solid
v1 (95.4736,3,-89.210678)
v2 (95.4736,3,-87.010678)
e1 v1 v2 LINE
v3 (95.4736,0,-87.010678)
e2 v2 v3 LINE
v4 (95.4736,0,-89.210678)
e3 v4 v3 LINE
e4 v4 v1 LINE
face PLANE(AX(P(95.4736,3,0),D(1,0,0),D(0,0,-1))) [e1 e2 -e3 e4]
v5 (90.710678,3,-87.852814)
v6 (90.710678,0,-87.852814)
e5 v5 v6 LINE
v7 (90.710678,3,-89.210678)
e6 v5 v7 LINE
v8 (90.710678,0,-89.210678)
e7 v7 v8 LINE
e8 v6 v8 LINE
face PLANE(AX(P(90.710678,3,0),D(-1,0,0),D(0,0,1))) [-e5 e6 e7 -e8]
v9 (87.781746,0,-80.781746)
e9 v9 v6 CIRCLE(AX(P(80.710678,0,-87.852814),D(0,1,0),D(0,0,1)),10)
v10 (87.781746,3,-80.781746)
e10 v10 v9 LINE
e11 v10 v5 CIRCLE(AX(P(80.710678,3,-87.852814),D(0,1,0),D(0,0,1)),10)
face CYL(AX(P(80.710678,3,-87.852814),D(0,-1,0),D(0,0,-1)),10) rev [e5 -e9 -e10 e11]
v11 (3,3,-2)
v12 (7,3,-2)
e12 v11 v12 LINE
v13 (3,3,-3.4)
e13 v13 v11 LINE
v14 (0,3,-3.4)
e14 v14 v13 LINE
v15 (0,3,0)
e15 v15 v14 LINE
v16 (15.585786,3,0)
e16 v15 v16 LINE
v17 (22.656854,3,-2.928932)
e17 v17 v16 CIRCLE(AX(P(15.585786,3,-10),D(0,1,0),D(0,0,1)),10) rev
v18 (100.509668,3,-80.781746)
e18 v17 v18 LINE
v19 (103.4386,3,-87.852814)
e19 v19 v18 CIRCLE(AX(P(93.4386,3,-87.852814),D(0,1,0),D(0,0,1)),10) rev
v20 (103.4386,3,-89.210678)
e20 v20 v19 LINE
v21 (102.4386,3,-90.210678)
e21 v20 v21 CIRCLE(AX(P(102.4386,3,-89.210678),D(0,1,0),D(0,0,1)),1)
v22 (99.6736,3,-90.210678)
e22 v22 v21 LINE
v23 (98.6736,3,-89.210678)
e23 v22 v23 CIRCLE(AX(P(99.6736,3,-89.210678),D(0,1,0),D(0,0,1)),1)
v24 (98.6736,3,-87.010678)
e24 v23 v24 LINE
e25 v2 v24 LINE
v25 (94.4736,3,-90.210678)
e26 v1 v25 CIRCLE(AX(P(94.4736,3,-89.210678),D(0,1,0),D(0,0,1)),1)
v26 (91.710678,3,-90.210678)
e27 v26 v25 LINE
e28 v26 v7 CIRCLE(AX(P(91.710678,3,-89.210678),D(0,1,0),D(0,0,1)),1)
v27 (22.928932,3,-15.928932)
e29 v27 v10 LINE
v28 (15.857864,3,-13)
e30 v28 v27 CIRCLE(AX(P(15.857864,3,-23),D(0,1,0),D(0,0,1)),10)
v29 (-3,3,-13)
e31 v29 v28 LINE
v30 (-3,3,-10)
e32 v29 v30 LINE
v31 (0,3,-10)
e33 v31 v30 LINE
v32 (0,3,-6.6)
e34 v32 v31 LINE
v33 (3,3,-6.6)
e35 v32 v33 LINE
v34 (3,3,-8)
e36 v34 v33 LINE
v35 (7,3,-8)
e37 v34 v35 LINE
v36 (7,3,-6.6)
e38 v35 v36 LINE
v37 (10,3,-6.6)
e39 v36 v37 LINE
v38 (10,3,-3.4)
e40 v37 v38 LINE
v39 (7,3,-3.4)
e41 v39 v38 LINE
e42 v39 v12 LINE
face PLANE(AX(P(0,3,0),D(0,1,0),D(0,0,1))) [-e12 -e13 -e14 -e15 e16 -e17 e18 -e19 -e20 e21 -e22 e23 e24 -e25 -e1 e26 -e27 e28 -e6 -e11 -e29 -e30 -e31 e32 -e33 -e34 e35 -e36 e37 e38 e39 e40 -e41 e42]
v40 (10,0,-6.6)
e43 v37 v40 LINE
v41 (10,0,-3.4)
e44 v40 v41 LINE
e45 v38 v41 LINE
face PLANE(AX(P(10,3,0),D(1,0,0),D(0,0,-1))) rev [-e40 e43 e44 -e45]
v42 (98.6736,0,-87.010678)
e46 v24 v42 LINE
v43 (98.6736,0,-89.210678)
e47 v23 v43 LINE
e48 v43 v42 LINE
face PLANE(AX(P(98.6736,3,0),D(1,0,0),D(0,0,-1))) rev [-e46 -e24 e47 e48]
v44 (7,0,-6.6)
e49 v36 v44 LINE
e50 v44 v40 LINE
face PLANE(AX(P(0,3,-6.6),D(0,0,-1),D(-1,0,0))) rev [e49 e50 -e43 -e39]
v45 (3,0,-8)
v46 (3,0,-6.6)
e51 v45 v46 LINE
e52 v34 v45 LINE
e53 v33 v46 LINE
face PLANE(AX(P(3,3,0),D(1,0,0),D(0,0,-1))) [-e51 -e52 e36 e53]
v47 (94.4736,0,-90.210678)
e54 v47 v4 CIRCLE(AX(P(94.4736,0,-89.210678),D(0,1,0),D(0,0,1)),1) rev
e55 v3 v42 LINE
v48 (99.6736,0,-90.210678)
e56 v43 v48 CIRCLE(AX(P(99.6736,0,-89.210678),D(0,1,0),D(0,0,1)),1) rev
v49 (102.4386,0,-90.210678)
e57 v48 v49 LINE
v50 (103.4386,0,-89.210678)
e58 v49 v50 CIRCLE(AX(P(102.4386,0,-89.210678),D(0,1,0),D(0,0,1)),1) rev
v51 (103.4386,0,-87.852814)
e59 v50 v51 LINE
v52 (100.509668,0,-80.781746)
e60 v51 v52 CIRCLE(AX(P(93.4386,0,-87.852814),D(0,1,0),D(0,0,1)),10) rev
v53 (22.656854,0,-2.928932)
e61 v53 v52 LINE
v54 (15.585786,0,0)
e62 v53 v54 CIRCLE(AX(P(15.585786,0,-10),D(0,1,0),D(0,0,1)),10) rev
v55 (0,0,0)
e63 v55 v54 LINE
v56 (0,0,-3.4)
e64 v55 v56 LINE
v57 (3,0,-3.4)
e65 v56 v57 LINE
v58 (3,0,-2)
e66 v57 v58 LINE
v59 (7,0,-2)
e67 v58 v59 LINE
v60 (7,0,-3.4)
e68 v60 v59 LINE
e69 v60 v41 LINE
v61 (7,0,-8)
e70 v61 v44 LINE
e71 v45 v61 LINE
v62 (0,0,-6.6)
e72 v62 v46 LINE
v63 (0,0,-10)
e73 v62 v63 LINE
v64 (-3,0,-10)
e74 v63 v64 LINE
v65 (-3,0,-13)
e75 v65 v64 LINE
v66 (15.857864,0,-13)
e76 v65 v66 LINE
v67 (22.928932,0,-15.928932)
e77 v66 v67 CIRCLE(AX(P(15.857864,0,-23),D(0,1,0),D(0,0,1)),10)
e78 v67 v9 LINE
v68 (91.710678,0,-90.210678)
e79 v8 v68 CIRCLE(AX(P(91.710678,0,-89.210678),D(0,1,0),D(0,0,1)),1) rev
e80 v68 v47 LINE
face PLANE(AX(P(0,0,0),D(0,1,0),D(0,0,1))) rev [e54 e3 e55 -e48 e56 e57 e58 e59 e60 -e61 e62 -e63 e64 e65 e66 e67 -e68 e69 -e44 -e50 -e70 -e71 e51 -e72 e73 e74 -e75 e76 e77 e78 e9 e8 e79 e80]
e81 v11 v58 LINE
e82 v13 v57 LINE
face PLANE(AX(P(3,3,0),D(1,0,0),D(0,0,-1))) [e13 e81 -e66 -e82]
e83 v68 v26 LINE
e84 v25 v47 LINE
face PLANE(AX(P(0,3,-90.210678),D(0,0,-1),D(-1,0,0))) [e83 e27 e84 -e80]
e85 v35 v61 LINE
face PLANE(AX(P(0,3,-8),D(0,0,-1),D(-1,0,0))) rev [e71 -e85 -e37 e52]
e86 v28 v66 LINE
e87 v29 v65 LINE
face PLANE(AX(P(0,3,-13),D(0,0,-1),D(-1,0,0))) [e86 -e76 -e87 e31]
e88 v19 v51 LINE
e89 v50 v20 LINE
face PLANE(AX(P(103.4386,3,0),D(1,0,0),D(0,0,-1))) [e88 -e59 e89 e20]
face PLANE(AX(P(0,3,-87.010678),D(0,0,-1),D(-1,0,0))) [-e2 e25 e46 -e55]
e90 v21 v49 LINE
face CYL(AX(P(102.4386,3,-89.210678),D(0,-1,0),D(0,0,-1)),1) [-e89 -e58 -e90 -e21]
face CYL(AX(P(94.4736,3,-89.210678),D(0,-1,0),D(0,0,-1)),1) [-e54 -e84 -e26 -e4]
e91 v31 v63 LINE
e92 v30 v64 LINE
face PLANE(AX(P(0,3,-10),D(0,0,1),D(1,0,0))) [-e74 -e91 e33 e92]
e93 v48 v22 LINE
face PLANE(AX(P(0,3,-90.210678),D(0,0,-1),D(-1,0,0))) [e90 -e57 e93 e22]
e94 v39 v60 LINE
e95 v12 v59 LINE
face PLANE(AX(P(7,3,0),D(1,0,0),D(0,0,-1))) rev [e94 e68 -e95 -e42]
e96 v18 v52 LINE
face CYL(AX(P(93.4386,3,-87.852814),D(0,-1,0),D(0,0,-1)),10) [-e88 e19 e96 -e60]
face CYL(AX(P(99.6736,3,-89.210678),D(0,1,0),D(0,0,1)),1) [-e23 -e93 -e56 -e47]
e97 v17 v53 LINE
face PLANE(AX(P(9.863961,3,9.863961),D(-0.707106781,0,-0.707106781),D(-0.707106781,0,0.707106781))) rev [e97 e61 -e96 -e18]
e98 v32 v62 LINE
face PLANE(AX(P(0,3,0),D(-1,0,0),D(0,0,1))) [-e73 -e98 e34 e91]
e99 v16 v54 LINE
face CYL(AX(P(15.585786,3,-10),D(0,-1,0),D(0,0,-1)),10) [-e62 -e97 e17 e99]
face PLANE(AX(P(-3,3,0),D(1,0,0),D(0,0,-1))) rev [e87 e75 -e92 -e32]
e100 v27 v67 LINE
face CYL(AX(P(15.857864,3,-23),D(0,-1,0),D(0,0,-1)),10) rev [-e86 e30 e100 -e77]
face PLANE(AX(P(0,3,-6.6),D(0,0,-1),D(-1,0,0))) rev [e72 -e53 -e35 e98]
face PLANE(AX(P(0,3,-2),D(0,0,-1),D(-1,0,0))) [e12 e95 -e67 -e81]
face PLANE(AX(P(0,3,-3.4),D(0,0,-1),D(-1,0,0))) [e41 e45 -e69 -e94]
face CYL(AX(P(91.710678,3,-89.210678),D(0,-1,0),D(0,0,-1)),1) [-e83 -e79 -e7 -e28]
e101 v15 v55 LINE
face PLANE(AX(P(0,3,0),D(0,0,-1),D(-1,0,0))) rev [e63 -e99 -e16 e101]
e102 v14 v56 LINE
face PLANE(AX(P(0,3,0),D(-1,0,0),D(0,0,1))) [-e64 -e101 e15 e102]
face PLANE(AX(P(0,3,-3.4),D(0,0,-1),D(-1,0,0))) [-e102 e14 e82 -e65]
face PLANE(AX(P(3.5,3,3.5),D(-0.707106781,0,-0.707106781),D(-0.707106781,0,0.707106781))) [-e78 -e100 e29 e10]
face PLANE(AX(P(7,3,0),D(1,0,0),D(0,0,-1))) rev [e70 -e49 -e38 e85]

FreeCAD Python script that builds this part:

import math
import FreeCAD as App
import Part
import Sketcher

V = App.Vector
Q = App.Units.Quantity


def edges_at(feature, points):
    """Names of the edges that pass closest to the given points."""
    edges = feature.Shape.Edges
    near = lambda p: min(range(len(edges)), key=lambda i: edges[i].distToShape(Part.Vertex(*p))[0])
    return sorted({f"Edge{near(p) + 1}" for p in points})

doc = App.newDocument("Part")
body = doc.addObject("PartDesign::Body", "Body")

sketch1 = doc.addObject("Sketcher::SketchObject", "Sketch")
body.addObject(sketch1)
sketch1.AttachmentSupport = (doc.XZ_Plane, [""])
sketch1.MapMode = "FlatFace"
sketch1.addGeometry([
    Part.LineSegment(V(10, -3.4, 0), V(7, -3.4, 0)),
    Part.LineSegment(V(7, -3.4, 0), V(7, -2, 0)),
    Part.LineSegment(V(7, -2, 0), V(3, -2, 0)),
    Part.LineSegment(V(3, -2, 0), V(3, -3.4, 0)),
    Part.LineSegment(V(3, -3.4, 0), V(0, -3.4, 0)),
    Part.LineSegment(V(0, -3.4, 0), V(0, 0, 0)),
    Part.LineSegment(V(0, 0, 0), V(15.6, 0, 0)),
    Part.ArcOfCircle(Part.Circle(V(15.6, -10, 0), V(0, 0, 1), 10), math.radians(45), math.radians(90)),
    Part.LineSegment(V(22.7, -2.9, 0), V(100.5, -80.8, 0)),
    Part.ArcOfCircle(Part.Circle(V(93.4, -87.9, 0), V(0, 0, 1), 10), math.radians(0), math.radians(45)),
    Part.LineSegment(V(103.4, -87.9, 0), V(103.4, -90.2, 0)),
    Part.LineSegment(V(103.4, -90.2, 0), V(98.7, -90.2, 0)),
    Part.LineSegment(V(98.7, -90.2, 0), V(98.7, -87, 0)),
    Part.LineSegment(V(98.7, -87, 0), V(95.5, -87, 0)),
    Part.LineSegment(V(95.5, -87, 0), V(95.5, -90.2, 0)),
    Part.LineSegment(V(95.5, -90.2, 0), V(90.7, -90.2, 0)),
    Part.LineSegment(V(90.7, -90.2, 0), V(90.7, -87.9, 0)),
    Part.ArcOfCircle(Part.Circle(V(80.7, -87.9, 0), V(0, 0, 1), 10), math.radians(0), math.radians(45)),
    Part.LineSegment(V(87.8, -80.8, 0), V(22.9, -15.9, 0)),
    Part.ArcOfCircle(Part.Circle(V(15.9, -23, 0), V(0, 0, 1), 10), math.radians(45), math.radians(90)),
    Part.LineSegment(V(15.9, -13, 0), V(-3, -13, 0)),
    Part.LineSegment(V(-3, -13, 0), V(-3, -10, 0)),
    Part.LineSegment(V(-3, -10, 0), V(0, -10, 0)),
    Part.LineSegment(V(0, -10, 0), V(0, -6.6, 0)),
    Part.LineSegment(V(0, -6.6, 0), V(3, -6.6, 0)),
    Part.LineSegment(V(3, -6.6, 0), V(3, -8, 0)),
    Part.LineSegment(V(3, -8, 0), V(7, -8, 0)),
    Part.LineSegment(V(7, -8, 0), V(7, -6.6, 0)),
    Part.LineSegment(V(7, -6.6, 0), V(10, -6.6, 0)),
    Part.LineSegment(V(10, -6.6, 0), V(10, -3.4, 0)),
], False)
sketch1.addConstraint([
    Sketcher.Constraint("Coincident", 0, 2, 1, 1),
    Sketcher.Constraint("Coincident", 1, 2, 2, 1),
    Sketcher.Constraint("Coincident", 2, 2, 3, 1),
    Sketcher.Constraint("Coincident", 3, 2, 4, 1),
    Sketcher.Constraint("Coincident", 4, 2, 5, 1),
    Sketcher.Constraint("Coincident", 5, 2, 6, 1),
    Sketcher.Constraint("Tangent", 6, 2, 7, 2),
    Sketcher.Constraint("Tangent", 7, 1, 8, 1),
    Sketcher.Constraint("Tangent", 8, 2, 9, 2),
    Sketcher.Constraint("Tangent", 9, 1, 10, 1),
    Sketcher.Constraint("Coincident", 10, 2, 11, 1),
    Sketcher.Constraint("Coincident", 11, 2, 12, 1),
    Sketcher.Constraint("Coincident", 12, 2, 13, 1),
    Sketcher.Constraint("Coincident", 13, 2, 14, 1),
    Sketcher.Constraint("Coincident", 14, 2, 15, 1),
    Sketcher.Constraint("Coincident", 15, 2, 16, 1),
    Sketcher.Constraint("Tangent", 16, 2, 17, 1),
    Sketcher.Constraint("Tangent", 17, 2, 18, 1),
    Sketcher.Constraint("Tangent", 18, 2, 19, 1),
    Sketcher.Constraint("Tangent", 19, 2, 20, 1),
    Sketcher.Constraint("Coincident", 20, 2, 21, 1),
    Sketcher.Constraint("Coincident", 21, 2, 22, 1),
    Sketcher.Constraint("Coincident", 22, 2, 23, 1),
    Sketcher.Constraint("Coincident", 23, 2, 24, 1),
    Sketcher.Constraint("Coincident", 24, 2, 25, 1),
    Sketcher.Constraint("Coincident", 25, 2, 26, 1),
    Sketcher.Constraint("Coincident", 26, 2, 27, 1),
    Sketcher.Constraint("Coincident", 27, 2, 28, 1),
    Sketcher.Constraint("Coincident", 28, 2, 29, 1),
    Sketcher.Constraint("Coincident", 29, 2, 0, 1),
    Sketcher.Constraint("Horizontal", 0),
    Sketcher.Constraint("Vertical", 1),
    Sketcher.Constraint("Horizontal", 2),
    Sketcher.Constraint("Vertical", 3),
    Sketcher.Constraint("Horizontal", 4),
    Sketcher.Constraint("Vertical", 5),
    Sketcher.Constraint("Horizontal", 6),
    Sketcher.Constraint("Vertical", 10),
    Sketcher.Constraint("Horizontal", 11),
    Sketcher.Constraint("Vertical", 12),
    Sketcher.Constraint("Horizontal", 13),
    Sketcher.Constraint("Vertical", 14),
    Sketcher.Constraint("Horizontal", 15),
    Sketcher.Constraint("Vertical", 16),
    Sketcher.Constraint("Horizontal", 20),
    Sketcher.Constraint("Vertical", 21),
    Sketcher.Constraint("Horizontal", 22),
    Sketcher.Constraint("Vertical", 23),
    Sketcher.Constraint("Horizontal", 24),
    Sketcher.Constraint("Vertical", 25),
    Sketcher.Constraint("Horizontal", 26),
    Sketcher.Constraint("Vertical", 27),
    Sketcher.Constraint("Horizontal", 28),
    Sketcher.Constraint("Vertical", 29),
    Sketcher.Constraint("Coincident", 5, 2, -1, 1),
    Sketcher.Constraint("Equal", 7, 9),
    Sketcher.Constraint("Equal", 9, 17),
    Sketcher.Constraint("Equal", 17, 19),
    Sketcher.Constraint("PointOnObject", 22, 2, -2),
    Sketcher.Constraint("Parallel", 8, 18),
    Sketcher.Constraint("Horizontal", 9, 3, 17, 3),
    Sketcher.Constraint("Horizontal", 0, 2, 3, 2),
    Sketcher.Constraint("Horizontal", 11, 2, 14, 2),
    Sketcher.Constraint("Horizontal", 7, 3, 21, 2),
    Sketcher.Constraint("Horizontal", 24, 2, 27, 2),
    Sketcher.Constraint("Vertical", 3, 2, 24, 2),
    Sketcher.Constraint("Vertical", 1, 2, 26, 2),
    Sketcher.Constraint("Equal", 0, 4),
    Sketcher.Constraint("Equal", 4, 22),
    Sketcher.Constraint("Equal", 13, 12),
    Sketcher.Constraint("Equal", 28, 21),
    Sketcher.Constraint("Equal", 5, 23),
    Sketcher.Constraint("Equal", 3, 25),
    Sketcher.Constraint("Equal", 14, 29),
    Sketcher.Constraint("Radius", 7, Q("10 mm")),
    Sketcher.Constraint("DistanceX", 0, 2, 0, 1, Q("3 mm")),
    Sketcher.Constraint("DistanceX", 2, 2, 2, 1, Q("4 mm")),
    Sketcher.Constraint("Angle", 8, Q("-45 deg")),
    Sketcher.Constraint("DistanceX", 13, 2, 13, 1, Q("3.2 mm")),
    Sketcher.Constraint("DistanceY", 1, 1, 1, 2, Q("1.4 mm")),
    Sketcher.Constraint("DistanceX", 11, 2, 11, 1, Q("4.765 mm")),
    Sketcher.Constraint("DistanceX", -1, 1, 9, 3, Q("93.4386 mm")),
    Sketcher.Constraint("Distance", 18, Q("91.715729 mm")),
    Sketcher.Constraint("DistanceX", 15, 2, 15, 1, Q("4.762922 mm")),
    Sketcher.Constraint("DistanceY", 10, 2, 10, 1, Q("2.357864 mm")),
])
pad1 = doc.addObject("PartDesign::Pad", "Pad")
body.addObject(pad1)
pad1.Profile = sketch1
pad1.Length = 3
pad1.Reversed = True
doc.recompute()

fillet = doc.addObject("PartDesign::Fillet", "Fillet")
body.addObject(fillet)
fillet.Base = (pad1, edges_at(pad1, [
    (90.711, 1.5, -90.211),
    (95.474, 1.5, -90.211),
    (98.674, 1.5, -90.211),
    (103.439, 1.5, -90.211),
]))
fillet.Radius = 1

doc.recompute()
